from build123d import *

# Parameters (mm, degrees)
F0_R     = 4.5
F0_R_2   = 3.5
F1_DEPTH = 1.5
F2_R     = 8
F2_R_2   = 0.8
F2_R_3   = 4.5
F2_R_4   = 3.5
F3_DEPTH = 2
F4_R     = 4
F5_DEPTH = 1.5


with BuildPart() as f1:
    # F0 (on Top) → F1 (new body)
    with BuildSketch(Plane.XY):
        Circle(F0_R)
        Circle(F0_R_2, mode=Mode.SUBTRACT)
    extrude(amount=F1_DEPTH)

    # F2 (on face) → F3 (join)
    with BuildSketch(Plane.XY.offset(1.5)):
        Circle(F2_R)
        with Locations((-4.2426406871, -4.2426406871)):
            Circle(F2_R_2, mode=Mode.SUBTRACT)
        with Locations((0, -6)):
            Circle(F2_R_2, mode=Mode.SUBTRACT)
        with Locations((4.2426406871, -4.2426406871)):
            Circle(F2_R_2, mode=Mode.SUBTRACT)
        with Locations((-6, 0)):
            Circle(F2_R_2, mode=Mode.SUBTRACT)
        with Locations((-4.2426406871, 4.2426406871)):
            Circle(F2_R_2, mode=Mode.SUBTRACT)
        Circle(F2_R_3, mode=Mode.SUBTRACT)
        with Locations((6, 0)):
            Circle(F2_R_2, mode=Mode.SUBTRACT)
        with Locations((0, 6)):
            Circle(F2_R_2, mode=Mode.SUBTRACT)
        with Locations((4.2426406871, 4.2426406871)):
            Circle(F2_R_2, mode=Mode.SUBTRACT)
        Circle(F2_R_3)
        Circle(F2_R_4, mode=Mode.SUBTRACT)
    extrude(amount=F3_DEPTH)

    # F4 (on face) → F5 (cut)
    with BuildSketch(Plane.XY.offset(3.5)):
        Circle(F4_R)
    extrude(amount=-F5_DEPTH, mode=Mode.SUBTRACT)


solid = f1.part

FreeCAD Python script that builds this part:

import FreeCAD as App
import Part
import Sketcher
Q = App.Units.Quantity

doc = App.newDocument("Part")
params = doc.addObject("Spreadsheet::Sheet", "Params")
for row, (alias, value) in enumerate([
    ("sketch1_diameter", "9 mm"),
    ("sketch1_diameter2", "7 mm"),
    ("pad1_length", "1.5 mm"),
    ("sketch2_diameter", "16 mm"),
    ("sketch2_diameter2", "7 mm"),
    ("sketch2_diameter3", "1.6 mm"),
    ("pad2_length", "2 mm"),
    ("sketch3_diameter", "8 mm"),
    ("pocket1_length", "1.5 mm"),
], start=1):
    params.set(f"A{row}", alias)
    params.set(f"B{row}", "=" + value)
    params.setAlias(f"B{row}", alias)

body = doc.addObject("PartDesign::Body", "Body")

# Sketch on XY plane
sketch1 = body.newObject("Sketcher::SketchObject", "Sketch")
sketch1.AttachmentSupport = (doc.getObject("XY_Plane"), [""])
sketch1.MapMode = "FlatFace"
sketch1.addGeometry([
    Part.Circle(App.Vector(0, 0, 0), App.Vector(0, 0, 1), 4.5),
    Part.Circle(App.Vector(0, 0, 0), App.Vector(0, 0, 1), 3.5),
], False)
sketch1.addConstraint([
    Sketcher.Constraint("Coincident", 0, 3, -1, 1),
    Sketcher.Constraint("Coincident", 1, 3, -1, 1),
    Sketcher.Constraint("Diameter", 0, Q("9 mm")),
    Sketcher.Constraint("Diameter", 1, Q("7 mm")),
])
sketch1.setExpression("Constraints[2]", "Params.sketch1_diameter")
sketch1.setExpression("Constraints[3]", "Params.sketch1_diameter2")
pad1 = body.newObject("PartDesign::Pad", "Pad")
pad1.Profile = sketch1
pad1.setExpression("Length", "Params.pad1_length")

# Sketch on XY plane
sketch2 = body.newObject("Sketcher::SketchObject", "Sketch001")
sketch2.AttachmentSupport = (doc.getObject("XY_Plane"), [""])
sketch2.MapMode = "FlatFace"
sketch2.AttachmentOffset = App.Placement(App.Vector(0, 0, 1.5), App.Rotation())
sketch2.addGeometry([
    Part.Circle(App.Vector(0, 0, 0), App.Vector(0, 0, 1), 8),  # 0
    Part.Circle(App.Vector(-4.242641, -4.242641, 0), App.Vector(0, 0, 1), 0.8),  # 1
    Part.Circle(App.Vector(0, -6, 0), App.Vector(0, 0, 1), 0.8),  # 2
    Part.Circle(App.Vector(4.242641, -4.242641, 0), App.Vector(0, 0, 1), 0.8),  # 3
    Part.Circle(App.Vector(-6, 0, 0), App.Vector(0, 0, 1), 0.8),  # 4
    Part.Circle(App.Vector(0, 0, 0), App.Vector(0, 0, 1), 3.5),  # 5
    Part.Circle(App.Vector(-4.242641, 4.242641, 0), App.Vector(0, 0, 1), 0.8),  # 6
    Part.Circle(App.Vector(6, 0, 0), App.Vector(0, 0, 1), 0.8),  # 7
    Part.Circle(App.Vector(0, 6, 0), App.Vector(0, 0, 1), 0.8),  # 8
    Part.Circle(App.Vector(4.242641, 4.242641, 0), App.Vector(0, 0, 1), 0.8),  # 9
], False)
sketch2.addConstraint([
    Sketcher.Constraint("Coincident", 0, 3, -1, 1),
    Sketcher.Constraint("Coincident", 5, 3, -1, 1),
    Sketcher.Constraint("Equal", 1, 2),
    Sketcher.Constraint("Equal", 2, 3),
    Sketcher.Constraint("Equal", 3, 4),
    Sketcher.Constraint("Equal", 4, 6),
    Sketcher.Constraint("Equal", 6, 7),
    Sketcher.Constraint("Equal", 7, 8),
    Sketcher.Constraint("Equal", 8, 9),
    Sketcher.Constraint("Symmetric", 3, 3, 6, 3, -1, 1),
    Sketcher.Constraint("Symmetric", 4, 3, 7, 3, -1, 1),
    Sketcher.Constraint("Symmetric", 2, 3, 8, 3, -1, 1),
    Sketcher.Constraint("Symmetric", 1, 3, 9, 3, -1, 1),
    Sketcher.Constraint("Symmetric", 1, 3, 3, 3, -2),
    Sketcher.Constraint("PointOnObject", 2, 3, -2),
    Sketcher.Constraint("PointOnObject", 4, 3, -1),
    Sketcher.Constraint("Diameter", 0, Q("16 mm")),
    Sketcher.Constraint("Diameter", 5, Q("7 mm")),
    Sketcher.Constraint("Diameter", 1, Q("1.6 mm")),
    Sketcher.Constraint("DistanceY", 2, 3, -1, 1, Q("6 mm")),
    Sketcher.Constraint("DistanceX", 4, 3, -1, 1, Q("6 mm")),
    Sketcher.Constraint("DistanceX", 1, 3, -1, 1, Q("4.242641 mm")),
    Sketcher.Constraint("DistanceY", 1, 3, -1, 1, Q("4.242641 mm")),
])
sketch2.setExpression("Constraints[16]", "Params.sketch2_diameter")
sketch2.setExpression("Constraints[17]", "Params.sketch2_diameter2")
sketch2.setExpression("Constraints[18]", "Params.sketch2_diameter3")
pad2 = body.newObject("PartDesign::Pad", "Pad001")
pad2.Profile = sketch2
pad2.setExpression("Length", "Params.pad2_length")

# Sketch on XY plane
sketch3 = body.newObject("Sketcher::SketchObject", "Sketch002")
sketch3.AttachmentSupport = (doc.getObject("XY_Plane"), [""])
sketch3.MapMode = "FlatFace"
sketch3.AttachmentOffset = App.Placement(App.Vector(0, 0, 3.5), App.Rotation())
sketch3.addGeometry(Part.Circle(App.Vector(0, 0, 0), App.Vector(0, 0, 1), 4), False)
sketch3.addConstraint([
    Sketcher.Constraint("Coincident", 0, 3, -1, 1),
    Sketcher.Constraint("Diameter", 0, Q("8 mm")),
])
sketch3.setExpression("Constraints[1]", "Params.sketch3_diameter")
pocket1 = body.newObject("PartDesign::Pocket", "Pocket")
pocket1.Profile = sketch3
pocket1.setExpression("Length", "Params.pocket1_length")

doc.recompute()
